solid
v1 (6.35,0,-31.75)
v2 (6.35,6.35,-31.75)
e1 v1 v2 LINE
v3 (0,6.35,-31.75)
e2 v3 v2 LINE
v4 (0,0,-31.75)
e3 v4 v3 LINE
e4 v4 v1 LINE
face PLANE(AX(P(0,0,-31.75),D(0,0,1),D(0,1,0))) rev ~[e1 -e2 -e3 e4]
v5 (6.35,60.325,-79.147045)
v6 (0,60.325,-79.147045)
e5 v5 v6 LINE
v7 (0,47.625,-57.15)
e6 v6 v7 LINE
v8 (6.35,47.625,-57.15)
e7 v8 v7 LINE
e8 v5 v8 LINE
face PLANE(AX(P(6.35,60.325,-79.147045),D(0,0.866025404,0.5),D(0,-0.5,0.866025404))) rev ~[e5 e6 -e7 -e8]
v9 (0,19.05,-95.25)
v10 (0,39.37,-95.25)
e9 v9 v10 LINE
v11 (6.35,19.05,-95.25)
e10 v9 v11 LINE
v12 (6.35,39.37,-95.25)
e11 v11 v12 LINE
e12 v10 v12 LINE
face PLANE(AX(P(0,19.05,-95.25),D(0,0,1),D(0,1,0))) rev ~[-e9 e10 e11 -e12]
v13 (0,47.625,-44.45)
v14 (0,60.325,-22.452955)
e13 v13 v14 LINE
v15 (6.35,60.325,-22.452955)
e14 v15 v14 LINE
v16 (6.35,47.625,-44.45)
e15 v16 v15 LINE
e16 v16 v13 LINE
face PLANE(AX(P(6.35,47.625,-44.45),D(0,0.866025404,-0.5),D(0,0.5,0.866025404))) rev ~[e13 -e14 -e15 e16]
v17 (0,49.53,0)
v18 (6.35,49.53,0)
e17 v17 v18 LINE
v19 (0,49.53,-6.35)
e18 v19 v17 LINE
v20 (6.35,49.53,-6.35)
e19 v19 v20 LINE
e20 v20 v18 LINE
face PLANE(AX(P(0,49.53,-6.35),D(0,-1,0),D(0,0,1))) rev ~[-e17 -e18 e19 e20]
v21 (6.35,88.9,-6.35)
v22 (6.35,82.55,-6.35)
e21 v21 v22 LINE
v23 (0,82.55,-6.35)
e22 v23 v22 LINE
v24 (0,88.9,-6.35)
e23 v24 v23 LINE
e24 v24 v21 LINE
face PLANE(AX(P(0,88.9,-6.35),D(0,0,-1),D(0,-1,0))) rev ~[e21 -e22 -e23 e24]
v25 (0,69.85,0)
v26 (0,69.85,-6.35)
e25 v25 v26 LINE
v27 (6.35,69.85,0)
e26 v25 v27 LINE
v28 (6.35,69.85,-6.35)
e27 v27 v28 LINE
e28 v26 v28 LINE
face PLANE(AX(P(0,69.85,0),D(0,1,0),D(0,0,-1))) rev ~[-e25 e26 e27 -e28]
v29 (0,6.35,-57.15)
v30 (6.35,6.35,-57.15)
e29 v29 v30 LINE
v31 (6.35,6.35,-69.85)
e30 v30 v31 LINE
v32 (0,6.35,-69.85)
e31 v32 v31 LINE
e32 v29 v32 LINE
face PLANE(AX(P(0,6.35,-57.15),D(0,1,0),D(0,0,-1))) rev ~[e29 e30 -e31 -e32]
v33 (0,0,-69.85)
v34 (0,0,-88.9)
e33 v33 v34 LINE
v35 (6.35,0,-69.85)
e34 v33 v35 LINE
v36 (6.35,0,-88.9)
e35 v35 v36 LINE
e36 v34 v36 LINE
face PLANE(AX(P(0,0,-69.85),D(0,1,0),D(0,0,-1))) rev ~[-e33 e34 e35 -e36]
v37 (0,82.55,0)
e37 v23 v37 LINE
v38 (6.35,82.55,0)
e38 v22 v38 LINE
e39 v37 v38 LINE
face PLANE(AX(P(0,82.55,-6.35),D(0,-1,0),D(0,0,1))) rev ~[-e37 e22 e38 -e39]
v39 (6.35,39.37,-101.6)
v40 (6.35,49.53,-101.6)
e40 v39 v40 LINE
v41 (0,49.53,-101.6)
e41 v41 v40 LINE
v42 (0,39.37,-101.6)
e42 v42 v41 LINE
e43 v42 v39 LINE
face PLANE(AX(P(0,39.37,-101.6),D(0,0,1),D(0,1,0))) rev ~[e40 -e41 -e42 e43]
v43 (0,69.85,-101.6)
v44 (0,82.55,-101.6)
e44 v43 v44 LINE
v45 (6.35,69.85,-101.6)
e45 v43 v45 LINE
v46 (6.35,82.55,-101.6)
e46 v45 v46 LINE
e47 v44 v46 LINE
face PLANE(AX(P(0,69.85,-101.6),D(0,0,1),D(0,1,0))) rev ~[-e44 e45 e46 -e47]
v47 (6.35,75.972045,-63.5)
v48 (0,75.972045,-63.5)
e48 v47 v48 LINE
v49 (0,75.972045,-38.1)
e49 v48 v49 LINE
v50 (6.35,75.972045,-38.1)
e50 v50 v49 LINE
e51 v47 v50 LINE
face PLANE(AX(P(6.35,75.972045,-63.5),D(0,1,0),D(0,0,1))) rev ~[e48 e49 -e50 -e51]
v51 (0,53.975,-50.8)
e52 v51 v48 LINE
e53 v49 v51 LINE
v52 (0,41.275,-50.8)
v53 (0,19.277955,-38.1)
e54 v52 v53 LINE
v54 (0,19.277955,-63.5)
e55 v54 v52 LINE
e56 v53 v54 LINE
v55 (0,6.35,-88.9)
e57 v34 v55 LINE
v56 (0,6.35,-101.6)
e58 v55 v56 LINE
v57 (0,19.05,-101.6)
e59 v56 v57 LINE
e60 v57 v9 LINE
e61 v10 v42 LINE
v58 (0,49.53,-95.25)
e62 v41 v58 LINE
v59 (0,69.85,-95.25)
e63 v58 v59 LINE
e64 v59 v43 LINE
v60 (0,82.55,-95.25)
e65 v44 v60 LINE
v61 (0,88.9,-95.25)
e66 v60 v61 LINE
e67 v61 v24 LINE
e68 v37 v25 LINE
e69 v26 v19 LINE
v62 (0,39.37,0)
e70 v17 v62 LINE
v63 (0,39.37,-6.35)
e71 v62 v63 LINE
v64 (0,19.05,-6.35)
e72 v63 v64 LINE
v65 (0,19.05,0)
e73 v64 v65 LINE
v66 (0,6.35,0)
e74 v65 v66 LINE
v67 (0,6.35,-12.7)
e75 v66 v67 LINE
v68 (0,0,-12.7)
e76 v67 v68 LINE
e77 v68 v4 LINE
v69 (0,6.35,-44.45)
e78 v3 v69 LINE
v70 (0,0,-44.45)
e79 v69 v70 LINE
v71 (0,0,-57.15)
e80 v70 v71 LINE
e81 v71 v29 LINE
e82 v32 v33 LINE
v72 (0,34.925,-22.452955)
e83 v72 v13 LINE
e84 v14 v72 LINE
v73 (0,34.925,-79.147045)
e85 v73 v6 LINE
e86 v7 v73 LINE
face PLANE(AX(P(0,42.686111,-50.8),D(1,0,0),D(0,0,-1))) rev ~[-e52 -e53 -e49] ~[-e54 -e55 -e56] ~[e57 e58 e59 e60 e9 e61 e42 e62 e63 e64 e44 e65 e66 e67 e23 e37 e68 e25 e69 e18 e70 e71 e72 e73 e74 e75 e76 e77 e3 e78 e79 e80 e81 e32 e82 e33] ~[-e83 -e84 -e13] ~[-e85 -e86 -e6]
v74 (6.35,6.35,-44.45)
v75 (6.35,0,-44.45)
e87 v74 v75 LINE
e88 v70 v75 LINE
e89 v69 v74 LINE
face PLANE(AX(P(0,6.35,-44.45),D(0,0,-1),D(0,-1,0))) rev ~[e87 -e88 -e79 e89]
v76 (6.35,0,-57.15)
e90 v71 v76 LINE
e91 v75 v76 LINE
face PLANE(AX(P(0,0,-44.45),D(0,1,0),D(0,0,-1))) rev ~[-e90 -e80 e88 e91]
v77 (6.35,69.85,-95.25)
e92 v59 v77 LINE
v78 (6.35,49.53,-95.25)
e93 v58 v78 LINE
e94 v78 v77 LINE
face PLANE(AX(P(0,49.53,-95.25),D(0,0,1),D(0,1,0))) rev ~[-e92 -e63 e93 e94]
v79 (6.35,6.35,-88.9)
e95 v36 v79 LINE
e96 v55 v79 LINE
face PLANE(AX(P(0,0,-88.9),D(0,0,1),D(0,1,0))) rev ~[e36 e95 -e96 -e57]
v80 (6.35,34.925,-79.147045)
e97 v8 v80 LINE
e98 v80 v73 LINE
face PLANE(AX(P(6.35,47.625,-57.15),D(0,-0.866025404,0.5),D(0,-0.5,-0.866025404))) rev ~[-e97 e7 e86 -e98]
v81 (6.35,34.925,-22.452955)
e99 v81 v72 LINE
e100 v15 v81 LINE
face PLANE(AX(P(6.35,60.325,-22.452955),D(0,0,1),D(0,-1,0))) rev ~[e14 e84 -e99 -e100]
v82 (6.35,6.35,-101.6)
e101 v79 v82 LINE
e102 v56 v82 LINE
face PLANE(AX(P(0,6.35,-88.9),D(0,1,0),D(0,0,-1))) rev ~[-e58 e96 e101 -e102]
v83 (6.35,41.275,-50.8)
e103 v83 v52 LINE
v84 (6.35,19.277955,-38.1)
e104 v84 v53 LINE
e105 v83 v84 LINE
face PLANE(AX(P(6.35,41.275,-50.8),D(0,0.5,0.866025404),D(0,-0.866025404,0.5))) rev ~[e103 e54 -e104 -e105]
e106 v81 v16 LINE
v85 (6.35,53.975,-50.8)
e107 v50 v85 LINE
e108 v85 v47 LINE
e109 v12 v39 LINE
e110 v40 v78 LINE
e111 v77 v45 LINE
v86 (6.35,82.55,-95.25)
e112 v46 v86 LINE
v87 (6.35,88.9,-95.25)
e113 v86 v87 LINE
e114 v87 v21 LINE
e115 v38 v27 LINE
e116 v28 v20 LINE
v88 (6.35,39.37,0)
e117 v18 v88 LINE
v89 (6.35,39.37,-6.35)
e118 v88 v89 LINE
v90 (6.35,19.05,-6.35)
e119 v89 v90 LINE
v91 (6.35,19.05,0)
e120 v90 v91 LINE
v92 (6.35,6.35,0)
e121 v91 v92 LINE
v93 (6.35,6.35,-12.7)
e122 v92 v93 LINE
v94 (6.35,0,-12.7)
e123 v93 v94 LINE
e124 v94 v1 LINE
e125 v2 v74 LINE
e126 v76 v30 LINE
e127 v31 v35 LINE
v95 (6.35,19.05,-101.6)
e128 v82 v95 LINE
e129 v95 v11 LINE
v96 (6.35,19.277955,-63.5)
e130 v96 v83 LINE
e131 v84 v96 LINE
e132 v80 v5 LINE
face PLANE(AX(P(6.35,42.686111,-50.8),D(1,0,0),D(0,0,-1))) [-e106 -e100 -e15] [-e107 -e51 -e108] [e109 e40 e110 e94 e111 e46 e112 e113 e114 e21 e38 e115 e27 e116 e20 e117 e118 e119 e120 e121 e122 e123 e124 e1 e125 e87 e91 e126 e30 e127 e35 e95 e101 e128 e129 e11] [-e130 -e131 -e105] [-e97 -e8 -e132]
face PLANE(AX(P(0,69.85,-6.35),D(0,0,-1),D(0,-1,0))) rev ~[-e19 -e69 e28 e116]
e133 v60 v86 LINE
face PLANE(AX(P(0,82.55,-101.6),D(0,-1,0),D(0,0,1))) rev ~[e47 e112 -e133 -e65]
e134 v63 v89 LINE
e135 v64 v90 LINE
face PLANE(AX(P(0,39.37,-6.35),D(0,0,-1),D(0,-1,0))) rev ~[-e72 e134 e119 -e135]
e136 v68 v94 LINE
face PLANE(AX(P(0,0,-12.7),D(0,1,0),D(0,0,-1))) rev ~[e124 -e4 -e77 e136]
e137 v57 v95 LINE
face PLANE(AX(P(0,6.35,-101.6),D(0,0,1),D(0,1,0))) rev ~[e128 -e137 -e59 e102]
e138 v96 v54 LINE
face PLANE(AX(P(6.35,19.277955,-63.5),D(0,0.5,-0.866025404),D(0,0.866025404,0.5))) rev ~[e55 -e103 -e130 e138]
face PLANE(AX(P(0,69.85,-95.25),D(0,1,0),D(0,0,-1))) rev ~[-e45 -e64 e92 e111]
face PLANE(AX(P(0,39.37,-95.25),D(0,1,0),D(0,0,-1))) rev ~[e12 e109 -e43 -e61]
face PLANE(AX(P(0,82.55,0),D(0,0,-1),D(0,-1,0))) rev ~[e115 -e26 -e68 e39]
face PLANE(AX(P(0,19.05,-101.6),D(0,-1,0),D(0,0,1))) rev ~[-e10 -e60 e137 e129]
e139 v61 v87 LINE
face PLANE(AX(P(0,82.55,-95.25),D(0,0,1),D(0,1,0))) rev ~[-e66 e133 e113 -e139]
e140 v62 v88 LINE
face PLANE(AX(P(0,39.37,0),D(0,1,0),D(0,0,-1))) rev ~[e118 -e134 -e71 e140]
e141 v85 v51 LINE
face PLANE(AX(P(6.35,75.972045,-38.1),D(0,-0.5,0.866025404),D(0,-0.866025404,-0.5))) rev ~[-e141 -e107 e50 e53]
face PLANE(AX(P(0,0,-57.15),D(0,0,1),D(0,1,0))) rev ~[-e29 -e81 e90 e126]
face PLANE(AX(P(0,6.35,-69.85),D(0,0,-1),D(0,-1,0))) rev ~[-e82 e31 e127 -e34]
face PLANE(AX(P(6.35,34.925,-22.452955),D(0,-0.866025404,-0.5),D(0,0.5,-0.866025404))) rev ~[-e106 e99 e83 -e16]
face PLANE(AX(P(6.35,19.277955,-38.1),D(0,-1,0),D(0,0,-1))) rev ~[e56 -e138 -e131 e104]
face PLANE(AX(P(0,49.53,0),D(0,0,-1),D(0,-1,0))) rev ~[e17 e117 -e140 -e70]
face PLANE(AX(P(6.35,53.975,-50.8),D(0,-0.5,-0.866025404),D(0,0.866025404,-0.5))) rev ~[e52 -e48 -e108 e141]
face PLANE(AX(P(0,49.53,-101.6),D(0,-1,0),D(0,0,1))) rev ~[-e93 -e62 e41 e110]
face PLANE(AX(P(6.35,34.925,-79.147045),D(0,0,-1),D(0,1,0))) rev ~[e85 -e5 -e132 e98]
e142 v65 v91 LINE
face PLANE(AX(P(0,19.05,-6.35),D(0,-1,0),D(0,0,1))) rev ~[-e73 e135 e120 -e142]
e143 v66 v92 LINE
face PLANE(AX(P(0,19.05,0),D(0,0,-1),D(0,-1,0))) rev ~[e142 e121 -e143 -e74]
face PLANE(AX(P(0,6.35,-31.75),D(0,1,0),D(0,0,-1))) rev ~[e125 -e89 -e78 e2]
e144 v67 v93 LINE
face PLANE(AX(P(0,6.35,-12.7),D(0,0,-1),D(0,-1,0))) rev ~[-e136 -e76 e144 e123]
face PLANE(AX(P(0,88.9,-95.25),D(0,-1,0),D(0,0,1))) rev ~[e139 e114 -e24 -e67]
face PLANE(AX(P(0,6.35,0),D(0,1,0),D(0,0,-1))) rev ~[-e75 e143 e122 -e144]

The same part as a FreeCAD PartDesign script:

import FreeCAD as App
import Part
import Sketcher
from FreeCAD import Vector
Q = App.Units.Quantity

doc = App.newDocument("Part")
body = doc.addObject("PartDesign::Body", "Body")

sketch1 = body.newObject("Sketcher::SketchObject", "Sketch")
sketch1.AttachmentSupport = (doc.getObject("YZ_Plane"), [""])
sketch1.MapMode = "FlatFace"
sketch1.addGeometry([
    Part.LineSegment(Vector(0, -44, 0), Vector(0, -57, 0)),
    Part.LineSegment(Vector(0, -57, 0), Vector(6, -57, 0)),
    Part.LineSegment(Vector(6, -57, 0), Vector(6, -70, 0)),
    Part.LineSegment(Vector(6, -70, 0), Vector(0, -70, 0)),
    Part.LineSegment(Vector(0, -70, 0), Vector(0, -89, 0)),
    Part.LineSegment(Vector(0, -89, 0), Vector(6, -89, 0)),
    Part.LineSegment(Vector(6, -89, 0), Vector(6, -102, 0)),
    Part.LineSegment(Vector(6, -102, 0), Vector(19, -102, 0)),
    Part.LineSegment(Vector(19, -102, 0), Vector(19, -95, 0)),
    Part.LineSegment(Vector(19, -95, 0), Vector(39, -95, 0)),
    Part.LineSegment(Vector(39, -95, 0), Vector(39, -102, 0)),
    Part.LineSegment(Vector(39, -102, 0), Vector(50, -102, 0)),
    Part.LineSegment(Vector(50, -102, 0), Vector(50, -95, 0)),
    Part.LineSegment(Vector(50, -95, 0), Vector(70, -95, 0)),
    Part.LineSegment(Vector(70, -95, 0), Vector(70, -102, 0)),
    Part.LineSegment(Vector(70, -102, 0), Vector(83, -102, 0)),
    Part.LineSegment(Vector(83, -102, 0), Vector(83, -95, 0)),
    Part.LineSegment(Vector(83, -95, 0), Vector(89, -95, 0)),
    Part.LineSegment(Vector(89, -95, 0), Vector(89, -6, 0)),
    Part.LineSegment(Vector(89, -6, 0), Vector(83, -6, 0)),
    Part.LineSegment(Vector(83, -6, 0), Vector(83, 0, 0)),
    Part.LineSegment(Vector(83, 0, 0), Vector(70, 0, 0)),
    Part.LineSegment(Vector(70, 0, 0), Vector(70, -6, 0)),
    Part.LineSegment(Vector(70, -6, 0), Vector(50, -6, 0)),
    Part.LineSegment(Vector(50, -6, 0), Vector(50, 0, 0)),
    Part.LineSegment(Vector(50, 0, 0), Vector(39, 0, 0)),
    Part.LineSegment(Vector(39, 0, 0), Vector(39, -6, 0)),
    Part.LineSegment(Vector(39, -6, 0), Vector(19, -6, 0)),
    Part.LineSegment(Vector(19, -6, 0), Vector(19, 0, 0)),
    Part.LineSegment(Vector(19, 0, 0), Vector(6, 0, 0)),
    Part.LineSegment(Vector(6, 0, 0), Vector(6, -13, 0)),
    Part.LineSegment(Vector(6, -13, 0), Vector(0, -13, 0)),
    Part.LineSegment(Vector(0, -13, 0), Vector(0, -32, 0)),
    Part.LineSegment(Vector(0, -32, 0), Vector(6, -32, 0)),
    Part.LineSegment(Vector(6, -32, 0), Vector(6, -44, 0)),
    Part.LineSegment(Vector(6, -44, 0), Vector(0, -44, 0)),
], False)
sketch1.addConstraint([
    Sketcher.Constraint("Coincident", 0, 2, 1, 1),
    Sketcher.Constraint("Coincident", 1, 2, 2, 1),
    Sketcher.Constraint("Coincident", 2, 2, 3, 1),
    Sketcher.Constraint("Coincident", 3, 2, 4, 1),
    Sketcher.Constraint("Coincident", 4, 2, 5, 1),
    Sketcher.Constraint("Coincident", 5, 2, 6, 1),
    Sketcher.Constraint("Coincident", 6, 2, 7, 1),
    Sketcher.Constraint("Coincident", 7, 2, 8, 1),
    Sketcher.Constraint("Coincident", 8, 2, 9, 1),
    Sketcher.Constraint("Coincident", 9, 2, 10, 1),
    Sketcher.Constraint("Coincident", 10, 2, 11, 1),
    Sketcher.Constraint("Coincident", 11, 2, 12, 1),
    Sketcher.Constraint("Coincident", 12, 2, 13, 1),
    Sketcher.Constraint("Coincident", 13, 2, 14, 1),
    Sketcher.Constraint("Coincident", 14, 2, 15, 1),
    Sketcher.Constraint("Coincident", 15, 2, 16, 1),
    Sketcher.Constraint("Coincident", 16, 2, 17, 1),
    Sketcher.Constraint("Coincident", 17, 2, 18, 1),
    Sketcher.Constraint("Coincident", 18, 2, 19, 1),
    Sketcher.Constraint("Coincident", 19, 2, 20, 1),
    Sketcher.Constraint("Coincident", 20, 2, 21, 1),
    Sketcher.Constraint("Coincident", 21, 2, 22, 1),
    Sketcher.Constraint("Coincident", 22, 2, 23, 1),
    Sketcher.Constraint("Coincident", 23, 2, 24, 1),
    Sketcher.Constraint("Coincident", 24, 2, 25, 1),
    Sketcher.Constraint("Coincident", 25, 2, 26, 1),
    Sketcher.Constraint("Coincident", 26, 2, 27, 1),
    Sketcher.Constraint("Coincident", 27, 2, 28, 1),
    Sketcher.Constraint("Coincident", 28, 2, 29, 1),
    Sketcher.Constraint("Coincident", 29, 2, 30, 1),
    Sketcher.Constraint("Coincident", 30, 2, 31, 1),
    Sketcher.Constraint("Coincident", 31, 2, 32, 1),
    Sketcher.Constraint("Coincident", 32, 2, 33, 1),
    Sketcher.Constraint("Coincident", 33, 2, 34, 1),
    Sketcher.Constraint("Coincident", 34, 2, 35, 1),
    Sketcher.Constraint("Coincident", 35, 2, 0, 1),
    Sketcher.Constraint("Vertical", 0),
    Sketcher.Constraint("Horizontal", 1),
    Sketcher.Constraint("Vertical", 2),
    Sketcher.Constraint("Horizontal", 3),
    Sketcher.Constraint("Vertical", 4),
    Sketcher.Constraint("Horizontal", 5),
    Sketcher.Constraint("Vertical", 6),
    Sketcher.Constraint("Horizontal", 7),
    Sketcher.Constraint("Vertical", 8),
    Sketcher.Constraint("Horizontal", 9),
    Sketcher.Constraint("Vertical", 10),
    Sketcher.Constraint("Horizontal", 11),
    Sketcher.Constraint("Vertical", 12),
    Sketcher.Constraint("Horizontal", 13),
    Sketcher.Constraint("Vertical", 14),
    Sketcher.Constraint("Horizontal", 15),
    Sketcher.Constraint("Vertical", 16),
    Sketcher.Constraint("Horizontal", 17),
    Sketcher.Constraint("Vertical", 18),
    Sketcher.Constraint("Horizontal", 19),
    Sketcher.Constraint("Vertical", 20),
    Sketcher.Constraint("Horizontal", 21),
    Sketcher.Constraint("Vertical", 22),
    Sketcher.Constraint("Horizontal", 23),
    Sketcher.Constraint("Vertical", 24),
    Sketcher.Constraint("Horizontal", 25),
    Sketcher.Constraint("Vertical", 26),
    Sketcher.Constraint("Horizontal", 27),
    Sketcher.Constraint("Vertical", 28),
    Sketcher.Constraint("Horizontal", 29),
    Sketcher.Constraint("Vertical", 30),
    Sketcher.Constraint("Horizontal", 31),
    Sketcher.Constraint("Vertical", 32),
    Sketcher.Constraint("Horizontal", 33),
    Sketcher.Constraint("Vertical", 34),
    Sketcher.Constraint("Horizontal", 35),
    Sketcher.Constraint("PointOnObject", 0, 2, -2),
    Sketcher.Constraint("PointOnObject", 3, 2, -2),
    Sketcher.Constraint("PointOnObject", 20, 2, -1),
    Sketcher.Constraint("PointOnObject", 24, 2, -1),
    Sketcher.Constraint("PointOnObject", 28, 2, -1),
    Sketcher.Constraint("PointOnObject", 31, 2, -2),
    Sketcher.Constraint("Horizontal", 7, 2, 10, 2),
    Sketcher.Constraint("Horizontal", 9, 2, 12, 2),
    Sketcher.Constraint("Horizontal", 11, 2, 14, 2),
    Sketcher.Constraint("Horizontal", 13, 2, 16, 2),
    Sketcher.Constraint("Horizontal", 19, 2, 22, 2),
    Sketcher.Constraint("Horizontal", 23, 2, 26, 2),
    Sketcher.Constraint("Vertical", 2, 2, 5, 2),
    Sketcher.Constraint("Vertical", 16, 2, 19, 2),
    Sketcher.Constraint("Vertical", 14, 2, 21, 2),
    Sketcher.Constraint("Vertical", 12, 2, 23, 2),
    Sketcher.Constraint("Vertical", 10, 2, 25, 2),
    Sketcher.Constraint("Vertical", 8, 2, 27, 2),
    Sketcher.Constraint("Vertical", 6, 2, 29, 2),
    Sketcher.Constraint("Vertical", 30, 2, 33, 2),
    Sketcher.Constraint("Equal", 9, 13),
    Sketcher.Constraint("Equal", 7, 15),
    Sketcher.Constraint("Equal", 5, 17),
    Sketcher.Constraint("Equal", 29, 0),
    Sketcher.Constraint("Equal", 0, 2),
    Sketcher.Constraint("Equal", 2, 6),
    Sketcher.Constraint("Equal", 35, 8),
    Sketcher.Constraint("Equal", 16, 20),
    Sketcher.Constraint("Equal", 6, 30),
    Sketcher.Constraint("Equal", 4, 32),
    Sketcher.Constraint("Equal", 30, 34),
    Sketcher.Constraint("DistanceX", 7, 1, 7, 2, Q("0.5 in")),
    Sketcher.Constraint("DistanceX", 9, 1, 9, 2, Q("0.8 in")),
    Sketcher.Constraint("DistanceX", 11, 1, 11, 2, Q("0.4 in")),
    Sketcher.Constraint("DistanceY", 18, 1, 18, 2, Q("3.5 in")),
    Sketcher.Constraint("DistanceY", 6, 2, -1, 1, Q("4 in")),
])
pad1 = body.newObject("PartDesign::Pad", "Pad")
pad1.Profile = sketch1
pad1.Length = Q("0.25 in")

sketch2 = body.newObject("Sketcher::SketchObject", "Sketch001")
sketch2.AttachmentSupport = (doc.getObject("YZ_Plane"), [""])
sketch2.MapMode = "FlatFace"
sketch2.AttachmentOffset = App.Placement(Vector(0, 0, 0.25 * 25.4), App.Rotation())
sketch2.addGeometry([
    Part.LineSegment(Vector(48, -44, 0), Vector(60, -22, 0)),
    Part.LineSegment(Vector(60, -22, 0), Vector(35, -22, 0)),
    Part.LineSegment(Vector(35, -22, 0), Vector(48, -44, 0)),
    Part.LineSegment(Vector(54, -51, 0), Vector(76, -64, 0)),
    Part.LineSegment(Vector(76, -64, 0), Vector(76, -38, 0)),
    Part.LineSegment(Vector(76, -38, 0), Vector(54, -51, 0)),
    Part.LineSegment(Vector(48, -57, 0), Vector(35, -79, 0)),
    Part.LineSegment(Vector(35, -79, 0), Vector(60, -79, 0)),
    Part.LineSegment(Vector(60, -79, 0), Vector(48, -57, 0)),
    Part.LineSegment(Vector(41, -51, 0), Vector(19, -38, 0)),
    Part.LineSegment(Vector(19, -38, 0), Vector(19, -64, 0)),
    Part.LineSegment(Vector(19, -64, 0), Vector(41, -51, 0)),
], False)
sketch2.addConstraint([
    Sketcher.Constraint("Coincident", 0, 2, 1, 1),
    Sketcher.Constraint("Coincident", 1, 2, 2, 1),
    Sketcher.Constraint("Coincident", 2, 2, 0, 1),
    Sketcher.Constraint("Coincident", 3, 2, 4, 1),
    Sketcher.Constraint("Coincident", 4, 2, 5, 1),
    Sketcher.Constraint("Coincident", 5, 2, 3, 1),
    Sketcher.Constraint("Coincident", 6, 2, 7, 1),
    Sketcher.Constraint("Coincident", 7, 2, 8, 1),
    Sketcher.Constraint("Coincident", 8, 2, 6, 1),
    Sketcher.Constraint("Coincident", 9, 2, 10, 1),
    Sketcher.Constraint("Coincident", 10, 2, 11, 1),
    Sketcher.Constraint("Coincident", 11, 2, 9, 1),
    Sketcher.Constraint("Horizontal", 1),
    Sketcher.Constraint("Vertical", 4),
    Sketcher.Constraint("Horizontal", 7),
    Sketcher.Constraint("Vertical", 10),
    Sketcher.Constraint("Perpendicular", 0, 3),
    Sketcher.Constraint("Perpendicular", 2, 5),
    Sketcher.Constraint("Perpendicular", 3, 6),
    Sketcher.Constraint("Perpendicular", 5, 8),
    Sketcher.Constraint("Perpendicular", 6, 9),
    Sketcher.Constraint("Perpendicular", 8, 11),
    Sketcher.Constraint("Horizontal", 4, 2, 9, 2),
    Sketcher.Constraint("Horizontal", 3, 2, 10, 2),
    Sketcher.Constraint("Horizontal", 5, 2, 11, 2),
    Sketcher.Constraint("Vertical", 1, 2, 6, 2),
    Sketcher.Constraint("Vertical", 0, 2, 7, 2),
    Sketcher.Constraint("Equal", 7, 4),
    Sketcher.Constraint("DistanceX", 1, 2, 1, 1, Q("1 in")),
    Sketcher.Constraint("Distance", 0, Q("1 in")),
    Sketcher.Constraint("DistanceY", 5, 2, -1, 1, Q("2 in")),
    Sketcher.Constraint("DistanceY", 8, 2, 2, 2, Q("0.5 in")),
    Sketcher.Constraint("DistanceX", 11, 2, 5, 2, Q("0.5 in")),
    Sketcher.Constraint("DistanceY", 2, 2, -1, 1, Q("1.75 in")),
    Sketcher.Constraint("DistanceX", 2, 2, 5, 2, Q("0.25 in")),
    Sketcher.Constraint("DistanceX", -1, 1, 0, 2, Q("2.375 in")),
])
pocket1 = body.newObject("PartDesign::Pocket", "Pocket")
pocket1.Profile = sketch2
pocket1.Length = Q("0.25 in")

doc.recompute()
